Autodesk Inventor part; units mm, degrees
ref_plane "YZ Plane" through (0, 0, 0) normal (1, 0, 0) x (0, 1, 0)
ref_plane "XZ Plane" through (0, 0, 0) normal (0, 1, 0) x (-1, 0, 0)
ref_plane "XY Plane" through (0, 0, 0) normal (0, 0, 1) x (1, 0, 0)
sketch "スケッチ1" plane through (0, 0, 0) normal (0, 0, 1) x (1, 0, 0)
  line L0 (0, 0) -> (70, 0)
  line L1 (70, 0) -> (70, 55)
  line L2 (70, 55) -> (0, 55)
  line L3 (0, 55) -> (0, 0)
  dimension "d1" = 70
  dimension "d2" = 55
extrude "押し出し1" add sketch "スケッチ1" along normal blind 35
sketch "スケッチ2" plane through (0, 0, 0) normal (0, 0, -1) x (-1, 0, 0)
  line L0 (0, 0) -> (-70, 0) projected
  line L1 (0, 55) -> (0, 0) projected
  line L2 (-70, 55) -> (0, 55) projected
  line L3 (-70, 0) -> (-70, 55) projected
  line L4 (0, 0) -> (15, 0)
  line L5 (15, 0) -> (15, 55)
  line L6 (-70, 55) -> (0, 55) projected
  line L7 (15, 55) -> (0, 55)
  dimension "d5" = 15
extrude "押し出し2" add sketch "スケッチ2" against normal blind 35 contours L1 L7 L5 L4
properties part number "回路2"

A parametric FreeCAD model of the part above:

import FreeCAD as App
import Part
import Sketcher
Q = App.Units.Quantity

doc = App.newDocument("Part")
body = doc.addObject("PartDesign::Body", "Body")

# Sketch on XY plane
sketch1 = doc.addObject("Sketcher::SketchObject", "Sketch")
body.addObject(sketch1)
sketch1.AttachmentSupport = (doc.XY_Plane, [""])
sketch1.MapMode = "FlatFace"
sketch1.addGeometry(Part.LineSegment(App.Vector(0, 55, 0), App.Vector(0, 0, 0)), False)
sketch1.addGeometry(Part.LineSegment(App.Vector(0, 0, 0), App.Vector(70, 0, 0)), False)
sketch1.addGeometry(Part.LineSegment(App.Vector(70, 0, 0), App.Vector(70, 55, 0)), False)
sketch1.addGeometry(Part.LineSegment(App.Vector(70, 55, 0), App.Vector(0, 55, 0)), False)
sketch1.addConstraint(Sketcher.Constraint("Coincident", 0, 2, 1, 1))
sketch1.addConstraint(Sketcher.Constraint("Coincident", 1, 2, 2, 1))
sketch1.addConstraint(Sketcher.Constraint("Coincident", 2, 2, 3, 1))
sketch1.addConstraint(Sketcher.Constraint("Coincident", 3, 2, 0, 1))
sketch1.addConstraint(Sketcher.Constraint("Vertical", 0))
sketch1.addConstraint(Sketcher.Constraint("Horizontal", 1))
sketch1.addConstraint(Sketcher.Constraint("Vertical", 2))
sketch1.addConstraint(Sketcher.Constraint("Horizontal", 3))
sketch1.addConstraint(Sketcher.Constraint("Coincident", 0, 2, -1, 1))
sketch1.addConstraint(Sketcher.Constraint("DistanceX", 1, 1, 1, 2, Q("70 mm")))
sketch1.addConstraint(Sketcher.Constraint("DistanceY", 0, 2, 0, 1, Q("55 mm")))
pad1 = doc.addObject("PartDesign::Pad", "Pad")
body.addObject(pad1)
pad1.Profile = sketch1
pad1.Length = 35

# Sketch on XY plane
sketch2 = doc.addObject("Sketcher::SketchObject", "Sketch001")
body.addObject(sketch2)
sketch2.AttachmentSupport = (doc.XY_Plane, [""])
sketch2.MapMode = "FlatFace"
sketch2.addGeometry(Part.LineSegment(App.Vector(0, 55, 0), App.Vector(0, 0, 0)), False)
sketch2.addGeometry(Part.LineSegment(App.Vector(0, 0, 0), App.Vector(-15, 0, 0)), False)
sketch2.addGeometry(Part.LineSegment(App.Vector(-15, 0, 0), App.Vector(-15, 55, 0)), False)
sketch2.addGeometry(Part.LineSegment(App.Vector(-15, 55, 0), App.Vector(0, 55, 0)), False)
sketch2.addConstraint(Sketcher.Constraint("Coincident", 0, 2, 1, 1))
sketch2.addConstraint(Sketcher.Constraint("Coincident", 1, 2, 2, 1))
sketch2.addConstraint(Sketcher.Constraint("Coincident", 2, 2, 3, 1))
sketch2.addConstraint(Sketcher.Constraint("Coincident", 3, 2, 0, 1))
sketch2.addConstraint(Sketcher.Constraint("Vertical", 0))
sketch2.addConstraint(Sketcher.Constraint("Horizontal", 1))
sketch2.addConstraint(Sketcher.Constraint("Vertical", 2))
sketch2.addConstraint(Sketcher.Constraint("Horizontal", 3))
sketch2.addConstraint(Sketcher.Constraint("Coincident", 0, 2, -1, 1))
sketch2.addConstraint(Sketcher.Constraint("DistanceX", 1, 2, 1, 1, Q("15 mm")))
sketch2.addConstraint(Sketcher.Constraint("DistanceY", 0, 2, 0, 1, Q("55 mm")))
pad2 = doc.addObject("PartDesign::Pad", "Pad001")
body.addObject(pad2)
pad2.Profile = sketch2
pad2.Length = 35

doc.recompute()
